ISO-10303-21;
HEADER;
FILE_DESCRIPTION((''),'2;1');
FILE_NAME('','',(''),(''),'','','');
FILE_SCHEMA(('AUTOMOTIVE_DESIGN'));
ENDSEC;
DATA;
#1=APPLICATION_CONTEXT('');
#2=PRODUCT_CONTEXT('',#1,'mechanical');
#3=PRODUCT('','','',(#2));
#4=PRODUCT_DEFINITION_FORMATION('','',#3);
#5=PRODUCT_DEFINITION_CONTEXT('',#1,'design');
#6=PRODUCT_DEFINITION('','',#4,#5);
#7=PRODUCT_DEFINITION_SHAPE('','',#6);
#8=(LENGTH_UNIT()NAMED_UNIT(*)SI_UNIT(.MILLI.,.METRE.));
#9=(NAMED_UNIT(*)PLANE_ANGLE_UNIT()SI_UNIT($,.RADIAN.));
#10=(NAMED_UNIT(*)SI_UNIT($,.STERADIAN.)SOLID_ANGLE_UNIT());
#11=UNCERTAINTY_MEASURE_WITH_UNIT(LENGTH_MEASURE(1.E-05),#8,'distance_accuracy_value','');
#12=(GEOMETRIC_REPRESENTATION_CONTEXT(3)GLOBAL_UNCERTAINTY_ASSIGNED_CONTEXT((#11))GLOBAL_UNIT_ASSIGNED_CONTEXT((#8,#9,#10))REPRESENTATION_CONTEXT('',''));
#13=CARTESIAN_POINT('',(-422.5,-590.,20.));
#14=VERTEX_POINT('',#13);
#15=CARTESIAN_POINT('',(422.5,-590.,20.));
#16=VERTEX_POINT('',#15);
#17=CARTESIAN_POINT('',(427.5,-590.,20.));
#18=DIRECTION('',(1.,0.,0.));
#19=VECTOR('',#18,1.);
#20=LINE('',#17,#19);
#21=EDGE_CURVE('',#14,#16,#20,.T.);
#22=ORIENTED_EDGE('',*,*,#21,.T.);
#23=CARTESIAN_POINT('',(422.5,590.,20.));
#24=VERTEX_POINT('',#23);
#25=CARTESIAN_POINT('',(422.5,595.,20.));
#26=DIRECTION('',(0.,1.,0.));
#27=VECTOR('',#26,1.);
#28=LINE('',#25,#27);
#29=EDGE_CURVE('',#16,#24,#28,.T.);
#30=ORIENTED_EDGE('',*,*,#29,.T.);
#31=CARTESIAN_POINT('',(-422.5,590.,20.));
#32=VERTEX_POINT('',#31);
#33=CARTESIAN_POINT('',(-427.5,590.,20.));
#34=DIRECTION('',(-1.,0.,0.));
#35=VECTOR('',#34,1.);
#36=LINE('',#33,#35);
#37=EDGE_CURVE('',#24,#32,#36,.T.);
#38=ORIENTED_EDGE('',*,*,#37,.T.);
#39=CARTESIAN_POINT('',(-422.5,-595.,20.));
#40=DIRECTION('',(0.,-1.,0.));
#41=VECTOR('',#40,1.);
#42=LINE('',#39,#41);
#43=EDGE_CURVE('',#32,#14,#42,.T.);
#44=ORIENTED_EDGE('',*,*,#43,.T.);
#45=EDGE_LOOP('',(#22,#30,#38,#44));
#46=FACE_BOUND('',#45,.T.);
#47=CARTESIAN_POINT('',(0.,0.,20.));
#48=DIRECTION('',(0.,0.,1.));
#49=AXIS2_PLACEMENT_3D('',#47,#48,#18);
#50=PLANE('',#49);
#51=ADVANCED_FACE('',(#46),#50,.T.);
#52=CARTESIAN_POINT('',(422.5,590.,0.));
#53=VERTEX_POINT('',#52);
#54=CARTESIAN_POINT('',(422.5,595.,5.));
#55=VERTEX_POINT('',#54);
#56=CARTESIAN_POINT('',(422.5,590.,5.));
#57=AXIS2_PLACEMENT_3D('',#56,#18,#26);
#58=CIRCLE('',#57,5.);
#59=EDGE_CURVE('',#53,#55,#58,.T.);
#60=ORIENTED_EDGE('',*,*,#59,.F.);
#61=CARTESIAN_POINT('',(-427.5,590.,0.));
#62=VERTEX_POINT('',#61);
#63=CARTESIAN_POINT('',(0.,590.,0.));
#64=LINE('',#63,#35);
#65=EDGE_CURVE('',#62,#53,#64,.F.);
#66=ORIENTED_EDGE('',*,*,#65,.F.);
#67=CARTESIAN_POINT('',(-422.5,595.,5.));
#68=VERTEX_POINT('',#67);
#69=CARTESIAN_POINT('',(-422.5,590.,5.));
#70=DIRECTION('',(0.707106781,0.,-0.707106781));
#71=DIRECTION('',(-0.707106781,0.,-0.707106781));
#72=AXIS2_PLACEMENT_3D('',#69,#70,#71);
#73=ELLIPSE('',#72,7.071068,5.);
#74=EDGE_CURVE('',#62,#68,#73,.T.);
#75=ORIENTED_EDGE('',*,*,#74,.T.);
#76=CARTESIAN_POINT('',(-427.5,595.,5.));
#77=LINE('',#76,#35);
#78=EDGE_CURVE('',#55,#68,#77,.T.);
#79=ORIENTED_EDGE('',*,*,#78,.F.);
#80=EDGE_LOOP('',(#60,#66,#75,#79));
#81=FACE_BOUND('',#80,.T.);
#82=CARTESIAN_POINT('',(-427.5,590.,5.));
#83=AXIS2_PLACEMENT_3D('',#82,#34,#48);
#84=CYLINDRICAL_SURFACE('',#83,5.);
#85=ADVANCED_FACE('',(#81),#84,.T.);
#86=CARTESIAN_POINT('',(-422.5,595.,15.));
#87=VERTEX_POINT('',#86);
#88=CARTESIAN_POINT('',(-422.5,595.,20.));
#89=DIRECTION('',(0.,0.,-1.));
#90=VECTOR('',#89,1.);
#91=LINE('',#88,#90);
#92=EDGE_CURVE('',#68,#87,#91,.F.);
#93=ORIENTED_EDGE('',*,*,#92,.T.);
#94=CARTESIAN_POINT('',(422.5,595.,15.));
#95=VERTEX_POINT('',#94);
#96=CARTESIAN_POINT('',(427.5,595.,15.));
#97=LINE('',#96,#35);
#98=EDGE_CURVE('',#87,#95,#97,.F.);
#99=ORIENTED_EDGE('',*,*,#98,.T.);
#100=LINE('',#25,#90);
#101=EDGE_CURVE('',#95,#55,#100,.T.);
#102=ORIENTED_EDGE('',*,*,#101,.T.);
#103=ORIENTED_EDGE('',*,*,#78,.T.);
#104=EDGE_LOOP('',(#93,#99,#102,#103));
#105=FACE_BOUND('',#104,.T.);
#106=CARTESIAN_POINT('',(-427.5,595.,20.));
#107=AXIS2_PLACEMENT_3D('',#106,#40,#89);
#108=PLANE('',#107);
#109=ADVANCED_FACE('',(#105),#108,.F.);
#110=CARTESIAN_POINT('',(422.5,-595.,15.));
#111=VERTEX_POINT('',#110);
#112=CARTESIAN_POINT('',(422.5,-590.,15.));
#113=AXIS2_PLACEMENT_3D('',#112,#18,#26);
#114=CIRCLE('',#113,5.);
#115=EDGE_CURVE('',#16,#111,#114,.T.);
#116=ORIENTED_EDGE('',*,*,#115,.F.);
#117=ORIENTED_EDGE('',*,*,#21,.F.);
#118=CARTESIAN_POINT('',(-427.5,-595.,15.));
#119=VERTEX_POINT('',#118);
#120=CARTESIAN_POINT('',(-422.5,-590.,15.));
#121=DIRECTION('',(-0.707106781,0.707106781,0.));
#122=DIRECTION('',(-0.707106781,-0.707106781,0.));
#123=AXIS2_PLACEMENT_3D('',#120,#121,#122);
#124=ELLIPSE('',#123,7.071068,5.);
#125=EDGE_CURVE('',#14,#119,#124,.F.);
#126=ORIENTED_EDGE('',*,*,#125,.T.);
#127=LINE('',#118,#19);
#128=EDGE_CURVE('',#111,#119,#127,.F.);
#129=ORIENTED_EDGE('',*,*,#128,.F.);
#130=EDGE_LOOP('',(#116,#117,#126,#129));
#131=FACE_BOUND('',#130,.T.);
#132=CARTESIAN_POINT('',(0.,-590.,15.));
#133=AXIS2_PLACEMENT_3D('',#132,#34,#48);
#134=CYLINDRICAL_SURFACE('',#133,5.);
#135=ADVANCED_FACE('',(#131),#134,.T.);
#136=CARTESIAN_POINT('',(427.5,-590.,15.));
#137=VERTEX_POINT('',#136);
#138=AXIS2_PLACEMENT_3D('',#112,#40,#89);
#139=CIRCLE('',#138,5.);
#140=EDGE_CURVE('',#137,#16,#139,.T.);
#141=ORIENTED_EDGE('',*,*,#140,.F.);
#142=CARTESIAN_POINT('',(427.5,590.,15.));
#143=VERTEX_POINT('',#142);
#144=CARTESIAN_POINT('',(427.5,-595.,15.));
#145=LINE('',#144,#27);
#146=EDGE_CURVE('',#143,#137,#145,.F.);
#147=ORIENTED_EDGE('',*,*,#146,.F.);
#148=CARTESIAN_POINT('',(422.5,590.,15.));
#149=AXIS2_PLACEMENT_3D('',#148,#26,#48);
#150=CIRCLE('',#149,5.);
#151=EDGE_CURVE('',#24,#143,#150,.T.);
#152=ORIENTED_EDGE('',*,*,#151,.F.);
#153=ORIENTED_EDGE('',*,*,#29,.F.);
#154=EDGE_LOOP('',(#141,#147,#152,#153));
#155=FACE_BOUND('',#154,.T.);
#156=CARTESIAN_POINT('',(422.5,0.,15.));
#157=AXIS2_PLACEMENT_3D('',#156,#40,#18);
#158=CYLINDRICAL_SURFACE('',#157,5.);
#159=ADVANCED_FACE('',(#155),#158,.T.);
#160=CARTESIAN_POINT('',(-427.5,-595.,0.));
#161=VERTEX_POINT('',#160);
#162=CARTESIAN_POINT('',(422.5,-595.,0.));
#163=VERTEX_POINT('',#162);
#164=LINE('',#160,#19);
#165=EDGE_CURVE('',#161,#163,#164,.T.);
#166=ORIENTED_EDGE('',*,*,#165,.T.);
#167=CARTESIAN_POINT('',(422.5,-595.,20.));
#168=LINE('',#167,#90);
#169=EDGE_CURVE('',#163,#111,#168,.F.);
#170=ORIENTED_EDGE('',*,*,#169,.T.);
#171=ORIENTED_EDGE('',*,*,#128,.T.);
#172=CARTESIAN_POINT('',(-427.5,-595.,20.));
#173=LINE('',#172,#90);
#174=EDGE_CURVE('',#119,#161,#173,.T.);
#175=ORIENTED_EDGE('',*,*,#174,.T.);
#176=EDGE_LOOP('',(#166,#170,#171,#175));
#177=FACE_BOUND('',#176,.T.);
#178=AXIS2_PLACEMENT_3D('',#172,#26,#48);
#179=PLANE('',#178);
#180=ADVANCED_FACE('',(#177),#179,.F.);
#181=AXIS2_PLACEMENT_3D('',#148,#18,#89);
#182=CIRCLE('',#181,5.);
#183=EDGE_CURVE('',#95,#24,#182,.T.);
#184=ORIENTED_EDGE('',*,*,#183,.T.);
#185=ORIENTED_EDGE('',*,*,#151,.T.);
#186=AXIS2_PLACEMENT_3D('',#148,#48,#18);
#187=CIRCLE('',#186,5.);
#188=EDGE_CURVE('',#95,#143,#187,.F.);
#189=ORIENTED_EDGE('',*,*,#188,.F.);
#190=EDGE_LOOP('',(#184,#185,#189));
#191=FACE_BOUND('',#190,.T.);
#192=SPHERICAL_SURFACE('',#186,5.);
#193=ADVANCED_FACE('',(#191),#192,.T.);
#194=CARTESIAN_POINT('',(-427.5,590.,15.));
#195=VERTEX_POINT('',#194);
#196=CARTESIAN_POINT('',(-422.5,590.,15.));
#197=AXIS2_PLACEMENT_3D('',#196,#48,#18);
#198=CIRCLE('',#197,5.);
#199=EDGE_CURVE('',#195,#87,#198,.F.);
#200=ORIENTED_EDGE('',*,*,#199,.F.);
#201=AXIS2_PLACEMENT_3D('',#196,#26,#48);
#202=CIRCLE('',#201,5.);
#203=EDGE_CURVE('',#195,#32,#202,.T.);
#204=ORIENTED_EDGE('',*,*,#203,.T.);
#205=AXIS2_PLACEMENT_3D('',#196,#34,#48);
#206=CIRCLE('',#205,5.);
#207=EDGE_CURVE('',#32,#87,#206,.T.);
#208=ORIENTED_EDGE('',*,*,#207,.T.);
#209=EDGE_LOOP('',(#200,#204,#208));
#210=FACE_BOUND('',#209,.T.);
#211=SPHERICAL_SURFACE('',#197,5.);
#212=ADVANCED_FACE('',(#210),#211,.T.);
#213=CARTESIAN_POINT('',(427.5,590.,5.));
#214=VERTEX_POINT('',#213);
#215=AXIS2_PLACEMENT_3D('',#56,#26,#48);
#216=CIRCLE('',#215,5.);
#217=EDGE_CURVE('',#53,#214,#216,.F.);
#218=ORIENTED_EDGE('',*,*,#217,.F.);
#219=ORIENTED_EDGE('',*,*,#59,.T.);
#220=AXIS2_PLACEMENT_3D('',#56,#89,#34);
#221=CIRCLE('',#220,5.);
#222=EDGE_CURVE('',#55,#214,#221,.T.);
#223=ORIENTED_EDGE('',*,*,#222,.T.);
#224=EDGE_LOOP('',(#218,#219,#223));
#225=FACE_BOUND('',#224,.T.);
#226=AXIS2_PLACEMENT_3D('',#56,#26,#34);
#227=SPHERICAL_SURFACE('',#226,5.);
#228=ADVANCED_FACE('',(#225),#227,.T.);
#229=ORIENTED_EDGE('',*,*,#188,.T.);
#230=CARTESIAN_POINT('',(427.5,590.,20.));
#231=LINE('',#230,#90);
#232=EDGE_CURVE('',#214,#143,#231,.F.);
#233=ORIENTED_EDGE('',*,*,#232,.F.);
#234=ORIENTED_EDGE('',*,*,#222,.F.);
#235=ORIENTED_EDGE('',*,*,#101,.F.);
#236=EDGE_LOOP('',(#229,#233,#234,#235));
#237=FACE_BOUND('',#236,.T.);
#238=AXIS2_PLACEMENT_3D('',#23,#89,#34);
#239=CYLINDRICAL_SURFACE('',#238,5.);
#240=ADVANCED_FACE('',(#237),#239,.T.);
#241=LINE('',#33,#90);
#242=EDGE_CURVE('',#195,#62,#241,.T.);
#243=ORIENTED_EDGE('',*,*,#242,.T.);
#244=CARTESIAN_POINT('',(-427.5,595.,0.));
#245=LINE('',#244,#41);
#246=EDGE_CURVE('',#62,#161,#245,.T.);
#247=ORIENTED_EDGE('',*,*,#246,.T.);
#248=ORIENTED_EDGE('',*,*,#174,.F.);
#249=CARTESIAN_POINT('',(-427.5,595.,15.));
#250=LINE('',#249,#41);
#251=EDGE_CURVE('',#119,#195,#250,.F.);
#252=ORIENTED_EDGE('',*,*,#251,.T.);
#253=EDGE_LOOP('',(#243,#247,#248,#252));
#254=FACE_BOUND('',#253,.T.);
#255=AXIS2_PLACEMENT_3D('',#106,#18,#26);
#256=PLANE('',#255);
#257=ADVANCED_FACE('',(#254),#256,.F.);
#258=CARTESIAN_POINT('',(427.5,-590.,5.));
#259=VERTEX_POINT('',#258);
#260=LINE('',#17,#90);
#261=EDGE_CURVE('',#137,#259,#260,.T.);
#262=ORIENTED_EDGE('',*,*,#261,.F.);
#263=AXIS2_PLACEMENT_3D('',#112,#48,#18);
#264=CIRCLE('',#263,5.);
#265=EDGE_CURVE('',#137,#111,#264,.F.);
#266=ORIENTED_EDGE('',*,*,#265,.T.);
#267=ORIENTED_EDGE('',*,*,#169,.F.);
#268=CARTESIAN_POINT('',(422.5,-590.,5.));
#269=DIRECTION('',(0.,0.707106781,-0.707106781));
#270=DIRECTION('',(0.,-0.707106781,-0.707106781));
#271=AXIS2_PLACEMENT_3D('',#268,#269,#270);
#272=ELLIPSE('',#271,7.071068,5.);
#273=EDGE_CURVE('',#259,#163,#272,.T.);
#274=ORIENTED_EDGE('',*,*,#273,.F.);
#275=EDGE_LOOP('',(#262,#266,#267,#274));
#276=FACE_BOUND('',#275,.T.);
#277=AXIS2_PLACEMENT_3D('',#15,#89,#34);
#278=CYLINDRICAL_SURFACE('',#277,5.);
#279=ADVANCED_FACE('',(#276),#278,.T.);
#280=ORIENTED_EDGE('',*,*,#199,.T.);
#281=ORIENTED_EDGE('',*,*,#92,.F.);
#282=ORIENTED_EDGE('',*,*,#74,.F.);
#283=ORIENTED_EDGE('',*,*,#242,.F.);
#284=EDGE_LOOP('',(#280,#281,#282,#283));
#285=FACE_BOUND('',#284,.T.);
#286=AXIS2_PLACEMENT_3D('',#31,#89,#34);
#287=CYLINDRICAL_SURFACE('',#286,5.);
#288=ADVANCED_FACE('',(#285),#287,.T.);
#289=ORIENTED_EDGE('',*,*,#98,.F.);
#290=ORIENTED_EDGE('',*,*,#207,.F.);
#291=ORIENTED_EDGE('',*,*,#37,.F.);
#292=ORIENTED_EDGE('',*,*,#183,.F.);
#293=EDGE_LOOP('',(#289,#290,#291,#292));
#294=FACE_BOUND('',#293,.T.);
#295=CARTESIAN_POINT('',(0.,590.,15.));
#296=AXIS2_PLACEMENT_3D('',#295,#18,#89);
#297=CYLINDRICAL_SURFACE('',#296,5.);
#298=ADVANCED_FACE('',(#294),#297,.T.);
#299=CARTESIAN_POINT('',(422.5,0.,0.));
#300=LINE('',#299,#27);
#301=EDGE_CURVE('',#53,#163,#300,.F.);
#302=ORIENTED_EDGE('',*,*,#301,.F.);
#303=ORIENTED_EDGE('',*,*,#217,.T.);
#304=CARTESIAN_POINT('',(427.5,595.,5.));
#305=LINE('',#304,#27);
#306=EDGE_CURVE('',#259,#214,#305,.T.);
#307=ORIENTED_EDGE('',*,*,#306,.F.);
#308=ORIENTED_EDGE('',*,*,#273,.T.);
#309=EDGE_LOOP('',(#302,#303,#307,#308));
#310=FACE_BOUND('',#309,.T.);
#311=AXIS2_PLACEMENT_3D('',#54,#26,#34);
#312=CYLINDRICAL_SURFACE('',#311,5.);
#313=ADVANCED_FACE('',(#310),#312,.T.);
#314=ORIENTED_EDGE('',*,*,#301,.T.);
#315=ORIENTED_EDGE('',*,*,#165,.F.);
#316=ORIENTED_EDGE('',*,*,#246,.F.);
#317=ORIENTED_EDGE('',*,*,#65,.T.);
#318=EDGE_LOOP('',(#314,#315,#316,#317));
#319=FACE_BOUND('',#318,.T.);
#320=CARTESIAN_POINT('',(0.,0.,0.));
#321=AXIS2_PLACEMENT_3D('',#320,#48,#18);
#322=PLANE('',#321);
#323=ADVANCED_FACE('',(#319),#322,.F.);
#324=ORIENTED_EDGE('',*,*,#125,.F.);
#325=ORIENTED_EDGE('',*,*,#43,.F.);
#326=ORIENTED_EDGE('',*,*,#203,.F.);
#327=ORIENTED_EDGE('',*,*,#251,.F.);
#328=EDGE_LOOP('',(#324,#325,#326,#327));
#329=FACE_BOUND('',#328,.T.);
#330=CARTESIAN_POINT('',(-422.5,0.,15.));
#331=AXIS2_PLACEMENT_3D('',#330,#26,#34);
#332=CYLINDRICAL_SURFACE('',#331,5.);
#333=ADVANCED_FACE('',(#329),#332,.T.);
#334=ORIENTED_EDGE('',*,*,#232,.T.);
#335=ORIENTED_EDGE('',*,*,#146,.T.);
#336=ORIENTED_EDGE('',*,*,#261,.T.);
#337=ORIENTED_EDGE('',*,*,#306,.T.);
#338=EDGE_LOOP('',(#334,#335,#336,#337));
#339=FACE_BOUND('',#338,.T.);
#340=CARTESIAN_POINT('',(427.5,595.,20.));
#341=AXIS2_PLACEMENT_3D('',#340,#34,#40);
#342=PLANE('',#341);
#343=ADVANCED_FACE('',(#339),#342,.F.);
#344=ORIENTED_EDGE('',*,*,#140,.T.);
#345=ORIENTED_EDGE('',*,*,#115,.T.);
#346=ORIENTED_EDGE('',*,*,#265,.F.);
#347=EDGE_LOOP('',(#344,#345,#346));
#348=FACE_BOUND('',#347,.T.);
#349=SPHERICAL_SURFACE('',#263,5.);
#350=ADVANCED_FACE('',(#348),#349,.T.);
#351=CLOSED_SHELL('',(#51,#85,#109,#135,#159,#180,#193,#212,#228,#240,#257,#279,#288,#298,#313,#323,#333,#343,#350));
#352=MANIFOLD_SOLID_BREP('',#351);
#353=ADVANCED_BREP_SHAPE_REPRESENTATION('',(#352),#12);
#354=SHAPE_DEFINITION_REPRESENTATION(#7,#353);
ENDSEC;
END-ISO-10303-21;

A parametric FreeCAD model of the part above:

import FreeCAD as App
import Part
import Sketcher


def edges_at(feature, points):
    """Names of the edges that pass closest to the given points."""
    edges = feature.Shape.Edges
    near = lambda p: min(range(len(edges)), key=lambda i: edges[i].distToShape(Part.Vertex(*p))[0])
    return sorted({f"Edge{near(p) + 1}" for p in points})

doc = App.newDocument("Part")
body = doc.addObject("PartDesign::Body", "Body")

# Sketch on XY plane
sketch1 = body.newObject("Sketcher::SketchObject", "Sketch")
sketch1.AttachmentSupport = (doc.getObject("XY_Plane"), [""])
sketch1.MapMode = "FlatFace"
sketch1.addGeometry(Part.LineSegment(App.Vector(-428, 595, 0), App.Vector(-428, -595, 0)), False)
sketch1.addGeometry(Part.LineSegment(App.Vector(-428, -595, 0), App.Vector(428, -595, 0)), False)
sketch1.addGeometry(Part.LineSegment(App.Vector(428, -595, 0), App.Vector(428, 595, 0)), False)
sketch1.addGeometry(Part.LineSegment(App.Vector(428, 595, 0), App.Vector(-428, 595, 0)), False)
sketch1.addConstraint(Sketcher.Constraint("Coincident", 0, 2, 1, 1))
sketch1.addConstraint(Sketcher.Constraint("Coincident", 1, 2, 2, 1))
sketch1.addConstraint(Sketcher.Constraint("Coincident", 2, 2, 3, 1))
sketch1.addConstraint(Sketcher.Constraint("Coincident", 3, 2, 0, 1))
sketch1.addConstraint(Sketcher.Constraint("Vertical", 0))
sketch1.addConstraint(Sketcher.Constraint("Horizontal", 1))
sketch1.addConstraint(Sketcher.Constraint("Vertical", 2))
sketch1.addConstraint(Sketcher.Constraint("Horizontal", 3))
sketch1.addConstraint(Sketcher.Constraint("Symmetric", 0, 2, 2, 2, -1, 1))
sketch1.addConstraint(Sketcher.Constraint("DistanceX", 1, 1, 1, 2, 855.0))
sketch1.addConstraint(Sketcher.Constraint("DistanceY", 0, 2, 0, 1, 1190.0))
pad1 = body.newObject("PartDesign::Pad", "Pad")
pad1.Profile = sketch1
pad1.Length = 20
doc.recompute()

fillet = body.newObject("PartDesign::Fillet", "Fillet")
fillet.Base = (pad1, edges_at(pad1, [
    (-427.5, 0, 20),
    (0, -595, 20),
    (427.5, 0, 20),
    (0, 595, 0),
    (427.5, 0, 0),
    (427.5, -595, 10),
    (-427.5, 595, 10),
    (427.5, 595, 10),
    (0, 595, 20),
]))
fillet.Radius = 5

doc.recompute()
